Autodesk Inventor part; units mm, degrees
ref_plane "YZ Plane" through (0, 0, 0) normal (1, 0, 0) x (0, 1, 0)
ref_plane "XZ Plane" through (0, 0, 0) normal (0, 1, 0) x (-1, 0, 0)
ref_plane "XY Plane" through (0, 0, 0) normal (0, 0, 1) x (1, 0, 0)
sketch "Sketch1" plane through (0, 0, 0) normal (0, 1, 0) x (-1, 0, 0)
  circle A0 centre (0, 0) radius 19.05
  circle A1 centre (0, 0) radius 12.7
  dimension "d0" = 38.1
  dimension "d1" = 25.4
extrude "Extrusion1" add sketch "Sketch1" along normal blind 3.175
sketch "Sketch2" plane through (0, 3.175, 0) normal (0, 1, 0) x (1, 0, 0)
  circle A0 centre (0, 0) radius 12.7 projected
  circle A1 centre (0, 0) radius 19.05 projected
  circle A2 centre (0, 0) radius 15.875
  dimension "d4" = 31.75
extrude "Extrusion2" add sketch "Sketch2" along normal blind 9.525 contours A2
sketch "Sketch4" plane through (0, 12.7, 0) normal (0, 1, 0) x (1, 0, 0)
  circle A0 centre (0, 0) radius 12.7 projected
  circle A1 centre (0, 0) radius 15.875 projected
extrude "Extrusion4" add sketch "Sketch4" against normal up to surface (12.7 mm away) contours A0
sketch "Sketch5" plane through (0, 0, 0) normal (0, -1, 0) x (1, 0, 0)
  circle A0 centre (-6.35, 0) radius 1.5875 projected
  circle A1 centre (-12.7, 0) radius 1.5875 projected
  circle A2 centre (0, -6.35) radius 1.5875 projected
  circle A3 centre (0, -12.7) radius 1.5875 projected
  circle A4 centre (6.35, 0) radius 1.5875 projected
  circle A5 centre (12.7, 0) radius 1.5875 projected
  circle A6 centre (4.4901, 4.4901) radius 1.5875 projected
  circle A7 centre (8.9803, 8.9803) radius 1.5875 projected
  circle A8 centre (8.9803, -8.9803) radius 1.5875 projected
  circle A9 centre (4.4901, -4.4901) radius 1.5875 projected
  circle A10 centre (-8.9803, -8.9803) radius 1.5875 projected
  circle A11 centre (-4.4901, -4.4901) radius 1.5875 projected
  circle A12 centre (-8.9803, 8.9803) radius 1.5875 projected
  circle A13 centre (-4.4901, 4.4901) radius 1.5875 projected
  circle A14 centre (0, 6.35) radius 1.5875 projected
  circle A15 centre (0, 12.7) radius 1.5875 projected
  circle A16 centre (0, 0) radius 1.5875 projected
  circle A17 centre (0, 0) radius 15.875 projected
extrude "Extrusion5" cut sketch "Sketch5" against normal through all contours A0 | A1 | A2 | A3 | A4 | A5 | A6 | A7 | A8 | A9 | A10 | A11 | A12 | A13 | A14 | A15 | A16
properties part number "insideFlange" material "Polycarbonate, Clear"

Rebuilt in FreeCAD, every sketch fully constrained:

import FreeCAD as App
import Part
import Sketcher

V = App.Vector
Q = App.Units.Quantity

doc = App.newDocument("Part")
body = doc.addObject("PartDesign::Body", "Body")

# Sketch on XZ plane
sketch1 = body.newObject("Sketcher::SketchObject", "Sketch")
sketch1.AttachmentSupport = (doc.getObject("XZ_Plane"), [""])
sketch1.MapMode = "FlatFace"
sketch1.addGeometry(Part.Circle(V(0, 0, 0), V(0, 0, 1), 19), False)
sketch1.addGeometry(Part.Circle(V(0, 0, 0), V(0, 0, 1), 13), False)
sketch1.addConstraint(Sketcher.Constraint("Coincident", 0, 3, -1, 1))
sketch1.addConstraint(Sketcher.Constraint("Coincident", 1, 3, -1, 1))
sketch1.addConstraint(Sketcher.Constraint("Diameter", 1, Q("1 in")))
sketch1.addConstraint(Sketcher.Constraint("Diameter", 0, Q("1.5 in")))
pad1 = body.newObject("PartDesign::Pad", "Pad")
pad1.Profile = sketch1
pad1.Length = Q("0.125 in")
pad1.Reversed = True

# Sketch on XZ plane
sketch2 = body.newObject("Sketcher::SketchObject", "Sketch001")
sketch2.AttachmentSupport = (doc.getObject("XZ_Plane"), [""])
sketch2.MapMode = "FlatFace"
sketch2.AttachmentOffset = App.Placement(V(0, 0, -0.125 * 25.4), App.Rotation())
sketch2.addGeometry(Part.Circle(V(0, 0, 0), V(0, 0, 1), 16), False)
sketch2.addGeometry(Part.Circle(V(0, 0, 0), V(0, 0, 1), 13), False)
sketch2.addConstraint(Sketcher.Constraint("Coincident", 0, 3, -1, 1))
sketch2.addConstraint(Sketcher.Constraint("Coincident", 1, 3, -1, 1))
sketch2.addConstraint(Sketcher.Constraint("Diameter", 0, Q("1.25 in")))
sketch2.addConstraint(Sketcher.Constraint("Diameter", 1, Q("1 in")))
pad2 = body.newObject("PartDesign::Pad", "Pad001")
pad2.Profile = sketch2
pad2.Length = Q("0.375 in")
pad2.Reversed = True

# Sketch on XZ plane
sketch3 = body.newObject("Sketcher::SketchObject", "Sketch002")
sketch3.AttachmentSupport = (doc.getObject("XZ_Plane"), [""])
sketch3.MapMode = "FlatFace"
sketch3.AttachmentOffset = App.Placement(V(0, 0, -0.5 * 25.4), App.Rotation())
sketch3.addGeometry(Part.Circle(V(0, 0, 0), V(0, 0, 1), 13), False)
sketch3.addConstraint(Sketcher.Constraint("Coincident", 0, 3, -1, 1))
sketch3.addConstraint(Sketcher.Constraint("Diameter", 0, Q("1 in")))
pad3 = body.newObject("PartDesign::Pad", "Pad002")
pad3.Profile = sketch3
pad3.Length = Q("0.5 in")

# Sketch on XZ plane
sketch4 = body.newObject("Sketcher::SketchObject", "Sketch003")
sketch4.AttachmentSupport = (doc.getObject("XZ_Plane"), [""])
sketch4.MapMode = "FlatFace"
sketch4.addGeometry(Part.Circle(V(-6.3, 0, 0), V(0, 0, 1), 1.6), False)
sketch4.addGeometry(Part.Circle(V(-12.7, 0, 0), V(0, 0, 1), 1.6), False)
sketch4.addGeometry(Part.Circle(V(0, -6.3, 0), V(0, 0, 1), 1.6), False)
sketch4.addGeometry(Part.Circle(V(0, -12.7, 0), V(0, 0, 1), 1.6), False)
sketch4.addGeometry(Part.Circle(V(6.3, 0, 0), V(0, 0, 1), 1.6), False)
sketch4.addGeometry(Part.Circle(V(12.7, 0, 0), V(0, 0, 1), 1.6), False)
sketch4.addGeometry(Part.Circle(V(4.5, 4.5, 0), V(0, 0, 1), 1.6), False)
sketch4.addGeometry(Part.Circle(V(9, 9, 0), V(0, 0, 1), 1.6), False)
sketch4.addGeometry(Part.Circle(V(9, -9, 0), V(0, 0, 1), 1.6), False)
sketch4.addGeometry(Part.Circle(V(4.5, -4.5, 0), V(0, 0, 1), 1.6), False)
sketch4.addGeometry(Part.Circle(V(-9, -9, 0), V(0, 0, 1), 1.6), False)
sketch4.addGeometry(Part.Circle(V(-4.5, -4.5, 0), V(0, 0, 1), 1.6), False)
sketch4.addGeometry(Part.Circle(V(-9, 9, 0), V(0, 0, 1), 1.6), False)
sketch4.addGeometry(Part.Circle(V(-4.5, 4.5, 0), V(0, 0, 1), 1.6), False)
sketch4.addGeometry(Part.Circle(V(0, 6.3, 0), V(0, 0, 1), 1.6), False)
sketch4.addGeometry(Part.Circle(V(0, 12.7, 0), V(0, 0, 1), 1.6), False)
sketch4.addGeometry(Part.Circle(V(0, 0, 0), V(0, 0, 1), 1.6), False)
sketch4.addConstraint(Sketcher.Constraint("Coincident", 16, 3, -1, 1))
sketch4.addConstraint(Sketcher.Constraint("Equal", 0, 1))
sketch4.addConstraint(Sketcher.Constraint("Equal", 1, 2))
sketch4.addConstraint(Sketcher.Constraint("Equal", 2, 3))
sketch4.addConstraint(Sketcher.Constraint("Equal", 3, 4))
sketch4.addConstraint(Sketcher.Constraint("Equal", 4, 5))
sketch4.addConstraint(Sketcher.Constraint("Equal", 5, 6))
sketch4.addConstraint(Sketcher.Constraint("Equal", 6, 7))
sketch4.addConstraint(Sketcher.Constraint("Equal", 7, 8))
sketch4.addConstraint(Sketcher.Constraint("Equal", 8, 9))
sketch4.addConstraint(Sketcher.Constraint("Equal", 9, 10))
sketch4.addConstraint(Sketcher.Constraint("Equal", 10, 11))
sketch4.addConstraint(Sketcher.Constraint("Equal", 11, 12))
sketch4.addConstraint(Sketcher.Constraint("Equal", 12, 13))
sketch4.addConstraint(Sketcher.Constraint("Equal", 13, 14))
sketch4.addConstraint(Sketcher.Constraint("Equal", 14, 15))
sketch4.addConstraint(Sketcher.Constraint("Equal", 15, 16))
sketch4.addConstraint(Sketcher.Constraint("Symmetric", 0, 3, 4, 3, -1, 1))
sketch4.addConstraint(Sketcher.Constraint("Symmetric", 1, 3, 5, 3, -1, 1))
sketch4.addConstraint(Sketcher.Constraint("Symmetric", 7, 3, 10, 3, -1, 1))
sketch4.addConstraint(Sketcher.Constraint("Symmetric", 6, 3, 11, 3, -1, 1))
sketch4.addConstraint(Sketcher.Constraint("Symmetric", 8, 3, 12, 3, -1, 1))
sketch4.addConstraint(Sketcher.Constraint("Symmetric", 9, 3, 13, 3, -1, 1))
sketch4.addConstraint(Sketcher.Constraint("Symmetric", 2, 3, 14, 3, -1, 1))
sketch4.addConstraint(Sketcher.Constraint("Symmetric", 3, 3, 15, 3, -1, 1))
sketch4.addConstraint(Sketcher.Constraint("Symmetric", 8, 3, 10, 3, -2))
sketch4.addConstraint(Sketcher.Constraint("Symmetric", 9, 3, 11, 3, -2))
sketch4.addConstraint(Sketcher.Constraint("PointOnObject", 0, 3, -1))
sketch4.addConstraint(Sketcher.Constraint("PointOnObject", 1, 3, -1))
sketch4.addConstraint(Sketcher.Constraint("PointOnObject", 2, 3, -2))
sketch4.addConstraint(Sketcher.Constraint("PointOnObject", 3, 3, -2))
sketch4.addConstraint(Sketcher.Constraint("Diameter", 0, Q("0.125 in")))
sketch4.addConstraint(Sketcher.Constraint("DistanceX", 1, 3, 5, 3, Q("1 in")))
sketch4.addConstraint(Sketcher.Constraint("DistanceY", 3, 3, -1, 1, Q("0.5 in")))
sketch4.addConstraint(Sketcher.Constraint("DistanceX", 0, 3, 4, 3, Q("0.5 in")))
sketch4.addConstraint(Sketcher.Constraint("DistanceY", 2, 3, -1, 1, Q("0.25 in")))
sketch4.addConstraint(Sketcher.Constraint("DistanceX", -1, 1, 6, 3, Q("4.49 mm")))
sketch4.addConstraint(Sketcher.Constraint("DistanceY", -1, 1, 6, 3, Q("4.49 mm")))
sketch4.addConstraint(Sketcher.Constraint("DistanceX", -1, 1, 7, 3, Q("8.9803 mm")))
sketch4.addConstraint(Sketcher.Constraint("DistanceY", -1, 1, 7, 3, Q("8.9803 mm")))
pocket1 = body.newObject("PartDesign::Pocket", "Pocket")
pocket1.Profile = sketch4
pocket1.Type = "ThroughAll"

doc.recompute()
